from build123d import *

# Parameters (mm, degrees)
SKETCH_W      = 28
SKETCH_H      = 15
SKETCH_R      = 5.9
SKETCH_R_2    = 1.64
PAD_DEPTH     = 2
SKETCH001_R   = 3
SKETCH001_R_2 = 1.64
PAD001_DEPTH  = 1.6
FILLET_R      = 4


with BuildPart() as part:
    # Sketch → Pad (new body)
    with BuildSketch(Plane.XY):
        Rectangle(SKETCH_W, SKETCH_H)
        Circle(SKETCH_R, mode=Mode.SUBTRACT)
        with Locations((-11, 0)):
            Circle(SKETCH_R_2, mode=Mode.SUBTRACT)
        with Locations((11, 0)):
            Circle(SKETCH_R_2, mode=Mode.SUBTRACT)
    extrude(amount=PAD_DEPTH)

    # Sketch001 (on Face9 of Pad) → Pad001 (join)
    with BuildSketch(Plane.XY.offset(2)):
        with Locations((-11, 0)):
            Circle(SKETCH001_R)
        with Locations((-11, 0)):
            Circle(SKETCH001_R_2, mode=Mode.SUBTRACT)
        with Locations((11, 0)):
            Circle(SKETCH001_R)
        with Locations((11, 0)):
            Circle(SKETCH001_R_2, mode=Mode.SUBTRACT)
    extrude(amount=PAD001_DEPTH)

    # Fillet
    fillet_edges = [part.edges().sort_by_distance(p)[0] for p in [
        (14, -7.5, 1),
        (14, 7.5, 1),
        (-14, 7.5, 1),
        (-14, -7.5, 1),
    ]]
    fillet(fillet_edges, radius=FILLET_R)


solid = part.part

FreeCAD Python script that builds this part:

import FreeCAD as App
import Part
import Sketcher


def edges_at(feature, points):
    """Names of the edges that pass closest to the given points."""
    edges = feature.Shape.Edges
    near = lambda p: min(range(len(edges)), key=lambda i: edges[i].distToShape(Part.Vertex(*p))[0])
    return sorted({f"Edge{near(p) + 1}" for p in points})

doc = App.newDocument("Part")
body = doc.addObject("PartDesign::Body", "Body")

sketch1 = doc.addObject("Sketcher::SketchObject", "Sketch")
body.addObject(sketch1)
sketch1.AttachmentSupport = (doc.XY_Plane, [""])
sketch1.MapMode = "FlatFace"
sketch1.addGeometry(Part.LineSegment(App.Vector(-14, 7.5, 0), App.Vector(-14, -7.5, 0)), False)
sketch1.addGeometry(Part.LineSegment(App.Vector(-14, -7.5, 0), App.Vector(14, -7.5, 0)), False)
sketch1.addGeometry(Part.LineSegment(App.Vector(14, -7.5, 0), App.Vector(14, 7.5, 0)), False)
sketch1.addGeometry(Part.LineSegment(App.Vector(14, 7.5, 0), App.Vector(-14, 7.5, 0)), False)
sketch1.addGeometry(Part.Circle(App.Vector(-11, 0, 0), App.Vector(0, 0, 1), 1.6), False)
sketch1.addGeometry(Part.Circle(App.Vector(0, 0, 0), App.Vector(0, 0, 1), 5.9), False)
sketch1.addGeometry(Part.Circle(App.Vector(11, 0, 0), App.Vector(0, 0, 1), 1.6), False)
sketch1.addConstraint(Sketcher.Constraint("Coincident", 0, 2, 1, 1))
sketch1.addConstraint(Sketcher.Constraint("Coincident", 1, 2, 2, 1))
sketch1.addConstraint(Sketcher.Constraint("Coincident", 2, 2, 3, 1))
sketch1.addConstraint(Sketcher.Constraint("Coincident", 3, 2, 0, 1))
sketch1.addConstraint(Sketcher.Constraint("Vertical", 0))
sketch1.addConstraint(Sketcher.Constraint("Horizontal", 1))
sketch1.addConstraint(Sketcher.Constraint("Vertical", 2))
sketch1.addConstraint(Sketcher.Constraint("Horizontal", 3))
sketch1.addConstraint(Sketcher.Constraint("Coincident", 5, 3, -1, 1))
sketch1.addConstraint(Sketcher.Constraint("Equal", 4, 6))
sketch1.addConstraint(Sketcher.Constraint("Symmetric", 4, 3, 6, 3, -1, 1))
sketch1.addConstraint(Sketcher.Constraint("Symmetric", 0, 2, 2, 2, -1, 1))
sketch1.addConstraint(Sketcher.Constraint("PointOnObject", 4, 3, -1))
sketch1.addConstraint(Sketcher.Constraint("Diameter", 5, 11.8))
sketch1.addConstraint(Sketcher.Constraint("Diameter", 4, 3.28))
sketch1.addConstraint(Sketcher.Constraint("DistanceX", 1, 1, 1, 2, 28.0))
sketch1.addConstraint(Sketcher.Constraint("DistanceY", 0, 2, 0, 1, 15.0))
sketch1.addConstraint(Sketcher.Constraint("DistanceX", 4, 3, -1, 1, 11.0))
pad1 = doc.addObject("PartDesign::Pad", "Pad")
body.addObject(pad1)
pad1.Profile = sketch1
pad1.Length = 2

sketch2 = doc.addObject("Sketcher::SketchObject", "Sketch001")
body.addObject(sketch2)
sketch2.AttachmentSupport = (doc.XY_Plane, [""])
sketch2.MapMode = "FlatFace"
sketch2.AttachmentOffset = App.Placement(App.Vector(0, 0, 2), App.Rotation())
sketch2.addGeometry(Part.Circle(App.Vector(-11, 0, 0), App.Vector(0, 0, 1), 3), False)
sketch2.addGeometry(Part.Circle(App.Vector(-11, 0, 0), App.Vector(0, 0, 1), 1.6), False)
sketch2.addGeometry(Part.Circle(App.Vector(11, 0, 0), App.Vector(0, 0, 1), 3), False)
sketch2.addGeometry(Part.Circle(App.Vector(11, 0, 0), App.Vector(0, 0, 1), 1.6), False)
sketch2.addConstraint(Sketcher.Constraint("Coincident", 1, 3, 0, 3))
sketch2.addConstraint(Sketcher.Constraint("Coincident", 3, 3, 2, 3))
sketch2.addConstraint(Sketcher.Constraint("Equal", 0, 2))
sketch2.addConstraint(Sketcher.Constraint("Equal", 1, 3))
sketch2.addConstraint(Sketcher.Constraint("Symmetric", 0, 3, 2, 3, -1, 1))
sketch2.addConstraint(Sketcher.Constraint("PointOnObject", 0, 3, -1))
sketch2.addConstraint(Sketcher.Constraint("Diameter", 0, 6.0))
sketch2.addConstraint(Sketcher.Constraint("Diameter", 1, 3.28))
sketch2.addConstraint(Sketcher.Constraint("DistanceX", 0, 3, -1, 1, 11.0))
pad2 = doc.addObject("PartDesign::Pad", "Pad001")
body.addObject(pad2)
pad2.Profile = sketch2
pad2.Length = 1.6
doc.recompute()

fillet = doc.addObject("PartDesign::Fillet", "Fillet")
body.addObject(fillet)
fillet.Base = (pad2, edges_at(pad2, [
    (14, -7.5, 1),
    (14, 7.5, 1),
    (-14, 7.5, 1),
    (-14, -7.5, 1),
]))
fillet.Radius = 4

doc.recompute()
